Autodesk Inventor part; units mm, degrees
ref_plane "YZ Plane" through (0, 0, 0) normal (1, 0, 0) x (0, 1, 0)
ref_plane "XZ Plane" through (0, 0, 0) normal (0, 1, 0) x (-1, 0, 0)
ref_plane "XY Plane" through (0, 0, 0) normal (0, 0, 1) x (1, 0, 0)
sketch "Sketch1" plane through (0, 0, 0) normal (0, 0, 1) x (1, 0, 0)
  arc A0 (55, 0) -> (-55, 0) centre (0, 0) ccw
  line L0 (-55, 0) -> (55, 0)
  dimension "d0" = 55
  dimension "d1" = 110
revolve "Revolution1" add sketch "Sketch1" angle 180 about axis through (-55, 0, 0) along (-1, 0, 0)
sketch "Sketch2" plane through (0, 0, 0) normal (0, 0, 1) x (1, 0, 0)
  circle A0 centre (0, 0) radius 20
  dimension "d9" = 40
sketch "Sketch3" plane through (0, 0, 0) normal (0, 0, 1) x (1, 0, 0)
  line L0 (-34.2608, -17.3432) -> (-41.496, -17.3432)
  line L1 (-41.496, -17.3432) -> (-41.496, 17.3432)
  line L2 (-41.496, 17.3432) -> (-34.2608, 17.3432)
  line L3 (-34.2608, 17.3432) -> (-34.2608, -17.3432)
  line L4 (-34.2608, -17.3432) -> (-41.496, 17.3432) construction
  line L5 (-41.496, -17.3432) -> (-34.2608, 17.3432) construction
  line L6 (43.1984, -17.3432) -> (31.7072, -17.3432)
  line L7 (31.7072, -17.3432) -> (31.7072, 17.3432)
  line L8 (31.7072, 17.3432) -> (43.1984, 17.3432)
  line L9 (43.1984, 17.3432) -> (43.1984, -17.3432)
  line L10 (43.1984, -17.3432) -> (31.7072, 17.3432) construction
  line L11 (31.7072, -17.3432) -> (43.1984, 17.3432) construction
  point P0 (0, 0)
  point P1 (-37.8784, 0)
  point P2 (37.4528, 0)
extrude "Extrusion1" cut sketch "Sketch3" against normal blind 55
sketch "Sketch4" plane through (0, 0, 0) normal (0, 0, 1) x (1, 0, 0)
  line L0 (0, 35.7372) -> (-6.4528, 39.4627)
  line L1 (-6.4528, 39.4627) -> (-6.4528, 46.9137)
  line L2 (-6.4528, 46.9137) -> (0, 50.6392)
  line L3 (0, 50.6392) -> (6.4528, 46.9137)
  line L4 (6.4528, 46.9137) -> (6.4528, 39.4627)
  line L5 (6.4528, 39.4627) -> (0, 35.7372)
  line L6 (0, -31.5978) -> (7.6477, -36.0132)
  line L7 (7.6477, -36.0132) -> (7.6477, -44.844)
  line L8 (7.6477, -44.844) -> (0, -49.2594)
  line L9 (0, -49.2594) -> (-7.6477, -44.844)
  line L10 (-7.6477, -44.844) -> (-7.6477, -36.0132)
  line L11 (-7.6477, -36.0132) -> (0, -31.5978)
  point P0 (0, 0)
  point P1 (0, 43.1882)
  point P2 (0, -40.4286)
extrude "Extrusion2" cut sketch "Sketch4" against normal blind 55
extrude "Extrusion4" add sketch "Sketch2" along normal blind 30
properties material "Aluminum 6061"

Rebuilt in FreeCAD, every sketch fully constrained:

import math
import FreeCAD as App
import Part
import Sketcher

V = App.Vector
Q = App.Units.Quantity

doc = App.newDocument("Part")
params = doc.addObject("Spreadsheet::Sheet", "Params")
for row, (alias, value) in enumerate([
    ("sketch1_radius", "55 mm"),
    ("revolution_angle", "180 deg"),
    ("pocket1_length", "55 mm"),
    ("pocket2_length", "55 mm"),
    ("sketch4_diameter", "40 mm"),
    ("pad1_length", "30 mm"),
], start=1):
    params.set(f"A{row}", alias)
    params.set(f"B{row}", "=" + value)
    params.setAlias(f"B{row}", alias)

body = doc.addObject("PartDesign::Body", "Body")

sketch1 = body.newObject("Sketcher::SketchObject", "Sketch")
sketch1.AttachmentSupport = (doc.getObject("XY_Plane"), [""])
sketch1.MapMode = "FlatFace"
sketch1.addGeometry([
    Part.LineSegment(V(-55, 0, 0), V(55, 0, 0)),
    Part.ArcOfCircle(Part.Circle(V(0, 0, 0), V(0, 0, 1), 55), math.radians(0), math.radians(180)),
], False)
sketch1.addConstraint([
    Sketcher.Constraint("Coincident", 0, 1, 1, 2),
    Sketcher.Constraint("Coincident", 1, 1, 0, 2),
    Sketcher.Constraint("Horizontal", 0),
    Sketcher.Constraint("Coincident", 1, 3, -1, 1),
    Sketcher.Constraint("PointOnObject", 0, 1, -1),
    Sketcher.Constraint("Radius", 1, 55.0),
])
sketch1.setExpression("Constraints[5]", "Params.sketch1_radius")
revolution = body.newObject("PartDesign::Revolution", "Revolution")
revolution.Profile = sketch1
revolution.ReferenceAxis = (sketch1, ["H_Axis"])
revolution.setExpression("Angle", "Params.revolution_angle")
revolution.Reversed = True

sketch2 = body.newObject("Sketcher::SketchObject", "Sketch001")
sketch2.AttachmentSupport = (doc.getObject("XY_Plane"), [""])
sketch2.MapMode = "FlatFace"
sketch2.addGeometry([
    Part.LineSegment(V(-41, -17, 0), V(-34, -17, 0)),
    Part.LineSegment(V(-34, -17, 0), V(-34, 17, 0)),
    Part.LineSegment(V(-34, 17, 0), V(-41, 17, 0)),
    Part.LineSegment(V(-41, 17, 0), V(-41, -17, 0)),
    Part.LineSegment(V(32, -17, 0), V(43, -17, 0)),
    Part.LineSegment(V(43, -17, 0), V(43, 17, 0)),
    Part.LineSegment(V(43, 17, 0), V(32, 17, 0)),
    Part.LineSegment(V(32, 17, 0), V(32, -17, 0)),
], False)
sketch2.addConstraint([
    Sketcher.Constraint("Coincident", 0, 2, 1, 1),
    Sketcher.Constraint("Coincident", 1, 2, 2, 1),
    Sketcher.Constraint("Coincident", 2, 2, 3, 1),
    Sketcher.Constraint("Coincident", 3, 2, 0, 1),
    Sketcher.Constraint("Coincident", 4, 2, 5, 1),
    Sketcher.Constraint("Coincident", 5, 2, 6, 1),
    Sketcher.Constraint("Coincident", 6, 2, 7, 1),
    Sketcher.Constraint("Coincident", 7, 2, 4, 1),
    Sketcher.Constraint("Horizontal", 0),
    Sketcher.Constraint("Vertical", 1),
    Sketcher.Constraint("Horizontal", 2),
    Sketcher.Constraint("Vertical", 3),
    Sketcher.Constraint("Horizontal", 4),
    Sketcher.Constraint("Vertical", 5),
    Sketcher.Constraint("Horizontal", 6),
    Sketcher.Constraint("Vertical", 7),
    Sketcher.Constraint("Horizontal", 3, 2, 4, 2),
    Sketcher.Constraint("Horizontal", 2, 2, 5, 2),
    Sketcher.Constraint("DistanceX", 0, 1, 0, 2, 7.2352),
    Sketcher.Constraint("DistanceX", 4, 1, 4, 2, 11.4912),
    Sketcher.Constraint("DistanceY", 1, 1, 1, 2, 34.6864),
    Sketcher.Constraint("DistanceX", 2, 2, -1, 1, 41.496),
    Sketcher.Constraint("DistanceX", 1, 2, 6, 2, 65.968),
    Sketcher.Constraint("DistanceY", 0, 2, -1, 1, 17.3432),
])
pocket1 = body.newObject("PartDesign::Pocket", "Pocket")
pocket1.Profile = sketch2
pocket1.setExpression("Length", "Params.pocket1_length")

sketch3 = body.newObject("Sketcher::SketchObject", "Sketch002")
sketch3.AttachmentSupport = (doc.getObject("XY_Plane"), [""])
sketch3.MapMode = "FlatFace"
sketch3.addGeometry([
    Part.LineSegment(V(-6, 39, 0), V(0, 36, 0)),
    Part.LineSegment(V(0, 36, 0), V(6, 39, 0)),
    Part.LineSegment(V(6, 39, 0), V(6, 47, 0)),
    Part.LineSegment(V(6, 47, 0), V(0, 51, 0)),
    Part.LineSegment(V(0, 51, 0), V(-6, 47, 0)),
    Part.LineSegment(V(-6, 47, 0), V(-6, 39, 0)),
    Part.LineSegment(V(8, -36, 0), V(0, -32, 0)),
    Part.LineSegment(V(0, -32, 0), V(-8, -36, 0)),
    Part.LineSegment(V(-8, -36, 0), V(-8, -45, 0)),
    Part.LineSegment(V(-8, -45, 0), V(0, -49, 0)),
    Part.LineSegment(V(0, -49, 0), V(8, -45, 0)),
    Part.LineSegment(V(8, -45, 0), V(8, -36, 0)),
], False)
sketch3.addConstraint([
    Sketcher.Constraint("Coincident", 0, 2, 1, 1),
    Sketcher.Constraint("Coincident", 1, 2, 2, 1),
    Sketcher.Constraint("Coincident", 2, 2, 3, 1),
    Sketcher.Constraint("Coincident", 3, 2, 4, 1),
    Sketcher.Constraint("Coincident", 4, 2, 5, 1),
    Sketcher.Constraint("Coincident", 5, 2, 0, 1),
    Sketcher.Constraint("Coincident", 6, 2, 7, 1),
    Sketcher.Constraint("Coincident", 7, 2, 8, 1),
    Sketcher.Constraint("Coincident", 8, 2, 9, 1),
    Sketcher.Constraint("Coincident", 9, 2, 10, 1),
    Sketcher.Constraint("Coincident", 10, 2, 11, 1),
    Sketcher.Constraint("Coincident", 11, 2, 6, 1),
    Sketcher.Constraint("Vertical", 2),
    Sketcher.Constraint("Vertical", 5),
    Sketcher.Constraint("Vertical", 8),
    Sketcher.Constraint("Vertical", 11),
    Sketcher.Constraint("Symmetric", 2, 2, 4, 2, -2),
    Sketcher.Constraint("Symmetric", 8, 2, 10, 2, -2),
    Sketcher.Constraint("PointOnObject", 0, 2, -2),
    Sketcher.Constraint("PointOnObject", 3, 2, -2),
    Sketcher.Constraint("PointOnObject", 6, 2, -2),
    Sketcher.Constraint("PointOnObject", 9, 2, -2),
    Sketcher.Constraint("Parallel", 0, 3),
    Sketcher.Constraint("Parallel", 1, 4),
    Sketcher.Constraint("Parallel", 3, 6),
    Sketcher.Constraint("Parallel", 4, 7),
    Sketcher.Constraint("Parallel", 6, 9),
    Sketcher.Constraint("Angle", 0, Q("-29.9998 deg")),
    Sketcher.Constraint("DistanceY", 2, 1, 2, 2, 7.451),
    Sketcher.Constraint("Distance", 0, 7.451),
    Sketcher.Constraint("DistanceY", 8, 2, 8, 1, 8.8308),
    Sketcher.Constraint("DistanceY", 8, 2, -1, 1, 44.844),
    Sketcher.Constraint("DistanceY", 6, 2, 0, 2, 67.335),
    Sketcher.Constraint("DistanceX", 7, 2, 5, 2, 1.195),
])
pocket2 = body.newObject("PartDesign::Pocket", "Pocket001")
pocket2.Profile = sketch3
pocket2.setExpression("Length", "Params.pocket2_length")

sketch4 = body.newObject("Sketcher::SketchObject", "Sketch003")
sketch4.AttachmentSupport = (doc.getObject("XY_Plane"), [""])
sketch4.MapMode = "FlatFace"
sketch4.addGeometry(Part.Circle(V(0, 0, 0), V(0, 0, 1), 20), False)
sketch4.addConstraint([
    Sketcher.Constraint("Coincident", 0, 3, -1, 1),
    Sketcher.Constraint("Diameter", 0, 40.0),
])
sketch4.setExpression("Constraints[1]", "Params.sketch4_diameter")
pad1 = body.newObject("PartDesign::Pad", "Pad")
pad1.Profile = sketch4
pad1.setExpression("Length", "Params.pad1_length")

doc.recompute()
